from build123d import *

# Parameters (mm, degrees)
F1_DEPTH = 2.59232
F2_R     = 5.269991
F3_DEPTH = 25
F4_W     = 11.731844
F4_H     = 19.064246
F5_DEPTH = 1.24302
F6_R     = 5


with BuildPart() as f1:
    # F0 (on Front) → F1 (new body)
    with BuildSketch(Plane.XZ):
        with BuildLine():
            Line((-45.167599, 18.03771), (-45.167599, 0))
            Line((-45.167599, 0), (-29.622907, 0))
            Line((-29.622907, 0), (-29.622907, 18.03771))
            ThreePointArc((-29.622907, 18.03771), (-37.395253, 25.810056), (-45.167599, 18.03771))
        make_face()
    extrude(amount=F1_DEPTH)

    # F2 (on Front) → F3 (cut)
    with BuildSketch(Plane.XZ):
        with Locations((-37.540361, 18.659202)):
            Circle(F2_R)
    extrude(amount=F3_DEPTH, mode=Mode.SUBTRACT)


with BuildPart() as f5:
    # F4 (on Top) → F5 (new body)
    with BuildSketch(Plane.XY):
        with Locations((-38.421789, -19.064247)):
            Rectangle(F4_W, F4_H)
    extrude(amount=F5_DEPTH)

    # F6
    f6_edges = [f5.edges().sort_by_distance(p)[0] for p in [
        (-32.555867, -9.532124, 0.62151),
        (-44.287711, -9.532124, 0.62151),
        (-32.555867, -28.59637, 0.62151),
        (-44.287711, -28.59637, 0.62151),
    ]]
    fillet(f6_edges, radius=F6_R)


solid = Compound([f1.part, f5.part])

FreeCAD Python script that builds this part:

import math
import FreeCAD as App
import Part
import Sketcher


def edges_at(feature, points):
    """Names of the edges that pass closest to the given points."""
    edges = feature.Shape.Edges
    near = lambda p: min(range(len(edges)), key=lambda i: edges[i].distToShape(Part.Vertex(*p))[0])
    return sorted({f"Edge{near(p) + 1}" for p in points})

doc = App.newDocument("Part")
params = doc.addObject("Spreadsheet::Sheet", "Params")
for row, (alias, value) in enumerate([
    ("pad1_length", "2.59232 mm"),
    ("pocket1_length", "25 mm"),
    ("pad2_length", "1.24302 mm"),
    ("fillet_radius", "5 mm"),
], start=1):
    params.set(f"A{row}", alias)
    params.set(f"B{row}", "=" + value)
    params.setAlias(f"B{row}", alias)

body = doc.addObject("PartDesign::Body", "Body")

sketch1 = body.newObject("Sketcher::SketchObject", "Sketch")
sketch1.AttachmentSupport = (doc.getObject("XZ_Plane"), [""])
sketch1.MapMode = "FlatFace"
sketch1.addGeometry([
    Part.LineSegment(App.Vector(-45, 18, 0), App.Vector(-45, 0, 0)),
    Part.LineSegment(App.Vector(-45, 0, 0), App.Vector(-30, 0, 0)),
    Part.LineSegment(App.Vector(-30, 0, 0), App.Vector(-30, 18, 0)),
    Part.ArcOfCircle(Part.Circle(App.Vector(-37, 18, 0), App.Vector(0, 0, 1), 8), math.radians(0), math.radians(180)),
], False)
sketch1.addConstraint([
    Sketcher.Constraint("Coincident", 0, 2, 1, 1),
    Sketcher.Constraint("Coincident", 1, 2, 2, 1),
    Sketcher.Constraint("Tangent", 2, 2, 3, 1),
    Sketcher.Constraint("Tangent", 3, 2, 0, 1),
    Sketcher.Constraint("Vertical", 0),
    Sketcher.Constraint("Horizontal", 1),
    Sketcher.Constraint("Vertical", 2),
    Sketcher.Constraint("PointOnObject", 0, 2, -1),
    Sketcher.Constraint("Radius", 3, 7.772346),
    Sketcher.Constraint("DistanceY", 0, 2, 0, 1, 18.03771),
    Sketcher.Constraint("DistanceX", 0, 2, -1, 1, 45.167599),
])
pad1 = body.newObject("PartDesign::Pad", "Pad")
pad1.Profile = sketch1
pad1.setExpression("Length", "Params.pad1_length")

sketch2 = body.newObject("Sketcher::SketchObject", "Sketch001")
sketch2.AttachmentSupport = (doc.getObject("XZ_Plane"), [""])
sketch2.MapMode = "FlatFace"
sketch2.addGeometry(Part.Circle(App.Vector(-38, 19, 0), App.Vector(0, 0, 1), 5), False)
sketch2.addConstraint([
    Sketcher.Constraint("Diameter", 0, 10.539982),
    Sketcher.Constraint("DistanceX", 0, 3, -1, 1, 37.540361),
    Sketcher.Constraint("DistanceY", -1, 1, 0, 3, 18.659202),
])
pocket1 = body.newObject("PartDesign::Pocket", "Pocket")
pocket1.Profile = sketch2
pocket1.setExpression("Length", "Params.pocket1_length")
pocket1.Reversed = True
body2 = doc.addObject("PartDesign::Body", "Body001")

sketch3 = body2.newObject("Sketcher::SketchObject", "Sketch002")
sketch3.AttachmentSupport = (doc.getObject("XY_Plane001"), [""])
sketch3.MapMode = "FlatFace"
sketch3.addGeometry([
    Part.LineSegment(App.Vector(-44, -10, 0), App.Vector(-44, -29, 0)),
    Part.LineSegment(App.Vector(-44, -29, 0), App.Vector(-33, -29, 0)),
    Part.LineSegment(App.Vector(-33, -29, 0), App.Vector(-33, -10, 0)),
    Part.LineSegment(App.Vector(-33, -10, 0), App.Vector(-44, -10, 0)),
], False)
sketch3.addConstraint([
    Sketcher.Constraint("Coincident", 0, 2, 1, 1),
    Sketcher.Constraint("Coincident", 1, 2, 2, 1),
    Sketcher.Constraint("Coincident", 2, 2, 3, 1),
    Sketcher.Constraint("Coincident", 3, 2, 0, 1),
    Sketcher.Constraint("Vertical", 0),
    Sketcher.Constraint("Horizontal", 1),
    Sketcher.Constraint("Vertical", 2),
    Sketcher.Constraint("Horizontal", 3),
    Sketcher.Constraint("DistanceX", 1, 1, 1, 2, 11.731844),
    Sketcher.Constraint("DistanceY", 0, 2, 0, 1, 19.064246),
    Sketcher.Constraint("DistanceX", 0, 2, -1, 1, 44.287711),
    Sketcher.Constraint("DistanceY", 0, 2, -1, 1, 28.59637),
])
pad2 = body2.newObject("PartDesign::Pad", "Pad001")
pad2.Profile = sketch3
pad2.setExpression("Length", "Params.pad2_length")
doc.recompute()

fillet = body2.newObject("PartDesign::Fillet", "Fillet")
fillet.Base = (pad2, edges_at(pad2, [
    (-32.556, -9.532, 0.622),
    (-44.288, -9.532, 0.622),
    (-32.556, -28.596, 0.622),
    (-44.288, -28.596, 0.622),
]))
fillet.setExpression("Radius", "Params.fillet_radius")

doc.recompute()
